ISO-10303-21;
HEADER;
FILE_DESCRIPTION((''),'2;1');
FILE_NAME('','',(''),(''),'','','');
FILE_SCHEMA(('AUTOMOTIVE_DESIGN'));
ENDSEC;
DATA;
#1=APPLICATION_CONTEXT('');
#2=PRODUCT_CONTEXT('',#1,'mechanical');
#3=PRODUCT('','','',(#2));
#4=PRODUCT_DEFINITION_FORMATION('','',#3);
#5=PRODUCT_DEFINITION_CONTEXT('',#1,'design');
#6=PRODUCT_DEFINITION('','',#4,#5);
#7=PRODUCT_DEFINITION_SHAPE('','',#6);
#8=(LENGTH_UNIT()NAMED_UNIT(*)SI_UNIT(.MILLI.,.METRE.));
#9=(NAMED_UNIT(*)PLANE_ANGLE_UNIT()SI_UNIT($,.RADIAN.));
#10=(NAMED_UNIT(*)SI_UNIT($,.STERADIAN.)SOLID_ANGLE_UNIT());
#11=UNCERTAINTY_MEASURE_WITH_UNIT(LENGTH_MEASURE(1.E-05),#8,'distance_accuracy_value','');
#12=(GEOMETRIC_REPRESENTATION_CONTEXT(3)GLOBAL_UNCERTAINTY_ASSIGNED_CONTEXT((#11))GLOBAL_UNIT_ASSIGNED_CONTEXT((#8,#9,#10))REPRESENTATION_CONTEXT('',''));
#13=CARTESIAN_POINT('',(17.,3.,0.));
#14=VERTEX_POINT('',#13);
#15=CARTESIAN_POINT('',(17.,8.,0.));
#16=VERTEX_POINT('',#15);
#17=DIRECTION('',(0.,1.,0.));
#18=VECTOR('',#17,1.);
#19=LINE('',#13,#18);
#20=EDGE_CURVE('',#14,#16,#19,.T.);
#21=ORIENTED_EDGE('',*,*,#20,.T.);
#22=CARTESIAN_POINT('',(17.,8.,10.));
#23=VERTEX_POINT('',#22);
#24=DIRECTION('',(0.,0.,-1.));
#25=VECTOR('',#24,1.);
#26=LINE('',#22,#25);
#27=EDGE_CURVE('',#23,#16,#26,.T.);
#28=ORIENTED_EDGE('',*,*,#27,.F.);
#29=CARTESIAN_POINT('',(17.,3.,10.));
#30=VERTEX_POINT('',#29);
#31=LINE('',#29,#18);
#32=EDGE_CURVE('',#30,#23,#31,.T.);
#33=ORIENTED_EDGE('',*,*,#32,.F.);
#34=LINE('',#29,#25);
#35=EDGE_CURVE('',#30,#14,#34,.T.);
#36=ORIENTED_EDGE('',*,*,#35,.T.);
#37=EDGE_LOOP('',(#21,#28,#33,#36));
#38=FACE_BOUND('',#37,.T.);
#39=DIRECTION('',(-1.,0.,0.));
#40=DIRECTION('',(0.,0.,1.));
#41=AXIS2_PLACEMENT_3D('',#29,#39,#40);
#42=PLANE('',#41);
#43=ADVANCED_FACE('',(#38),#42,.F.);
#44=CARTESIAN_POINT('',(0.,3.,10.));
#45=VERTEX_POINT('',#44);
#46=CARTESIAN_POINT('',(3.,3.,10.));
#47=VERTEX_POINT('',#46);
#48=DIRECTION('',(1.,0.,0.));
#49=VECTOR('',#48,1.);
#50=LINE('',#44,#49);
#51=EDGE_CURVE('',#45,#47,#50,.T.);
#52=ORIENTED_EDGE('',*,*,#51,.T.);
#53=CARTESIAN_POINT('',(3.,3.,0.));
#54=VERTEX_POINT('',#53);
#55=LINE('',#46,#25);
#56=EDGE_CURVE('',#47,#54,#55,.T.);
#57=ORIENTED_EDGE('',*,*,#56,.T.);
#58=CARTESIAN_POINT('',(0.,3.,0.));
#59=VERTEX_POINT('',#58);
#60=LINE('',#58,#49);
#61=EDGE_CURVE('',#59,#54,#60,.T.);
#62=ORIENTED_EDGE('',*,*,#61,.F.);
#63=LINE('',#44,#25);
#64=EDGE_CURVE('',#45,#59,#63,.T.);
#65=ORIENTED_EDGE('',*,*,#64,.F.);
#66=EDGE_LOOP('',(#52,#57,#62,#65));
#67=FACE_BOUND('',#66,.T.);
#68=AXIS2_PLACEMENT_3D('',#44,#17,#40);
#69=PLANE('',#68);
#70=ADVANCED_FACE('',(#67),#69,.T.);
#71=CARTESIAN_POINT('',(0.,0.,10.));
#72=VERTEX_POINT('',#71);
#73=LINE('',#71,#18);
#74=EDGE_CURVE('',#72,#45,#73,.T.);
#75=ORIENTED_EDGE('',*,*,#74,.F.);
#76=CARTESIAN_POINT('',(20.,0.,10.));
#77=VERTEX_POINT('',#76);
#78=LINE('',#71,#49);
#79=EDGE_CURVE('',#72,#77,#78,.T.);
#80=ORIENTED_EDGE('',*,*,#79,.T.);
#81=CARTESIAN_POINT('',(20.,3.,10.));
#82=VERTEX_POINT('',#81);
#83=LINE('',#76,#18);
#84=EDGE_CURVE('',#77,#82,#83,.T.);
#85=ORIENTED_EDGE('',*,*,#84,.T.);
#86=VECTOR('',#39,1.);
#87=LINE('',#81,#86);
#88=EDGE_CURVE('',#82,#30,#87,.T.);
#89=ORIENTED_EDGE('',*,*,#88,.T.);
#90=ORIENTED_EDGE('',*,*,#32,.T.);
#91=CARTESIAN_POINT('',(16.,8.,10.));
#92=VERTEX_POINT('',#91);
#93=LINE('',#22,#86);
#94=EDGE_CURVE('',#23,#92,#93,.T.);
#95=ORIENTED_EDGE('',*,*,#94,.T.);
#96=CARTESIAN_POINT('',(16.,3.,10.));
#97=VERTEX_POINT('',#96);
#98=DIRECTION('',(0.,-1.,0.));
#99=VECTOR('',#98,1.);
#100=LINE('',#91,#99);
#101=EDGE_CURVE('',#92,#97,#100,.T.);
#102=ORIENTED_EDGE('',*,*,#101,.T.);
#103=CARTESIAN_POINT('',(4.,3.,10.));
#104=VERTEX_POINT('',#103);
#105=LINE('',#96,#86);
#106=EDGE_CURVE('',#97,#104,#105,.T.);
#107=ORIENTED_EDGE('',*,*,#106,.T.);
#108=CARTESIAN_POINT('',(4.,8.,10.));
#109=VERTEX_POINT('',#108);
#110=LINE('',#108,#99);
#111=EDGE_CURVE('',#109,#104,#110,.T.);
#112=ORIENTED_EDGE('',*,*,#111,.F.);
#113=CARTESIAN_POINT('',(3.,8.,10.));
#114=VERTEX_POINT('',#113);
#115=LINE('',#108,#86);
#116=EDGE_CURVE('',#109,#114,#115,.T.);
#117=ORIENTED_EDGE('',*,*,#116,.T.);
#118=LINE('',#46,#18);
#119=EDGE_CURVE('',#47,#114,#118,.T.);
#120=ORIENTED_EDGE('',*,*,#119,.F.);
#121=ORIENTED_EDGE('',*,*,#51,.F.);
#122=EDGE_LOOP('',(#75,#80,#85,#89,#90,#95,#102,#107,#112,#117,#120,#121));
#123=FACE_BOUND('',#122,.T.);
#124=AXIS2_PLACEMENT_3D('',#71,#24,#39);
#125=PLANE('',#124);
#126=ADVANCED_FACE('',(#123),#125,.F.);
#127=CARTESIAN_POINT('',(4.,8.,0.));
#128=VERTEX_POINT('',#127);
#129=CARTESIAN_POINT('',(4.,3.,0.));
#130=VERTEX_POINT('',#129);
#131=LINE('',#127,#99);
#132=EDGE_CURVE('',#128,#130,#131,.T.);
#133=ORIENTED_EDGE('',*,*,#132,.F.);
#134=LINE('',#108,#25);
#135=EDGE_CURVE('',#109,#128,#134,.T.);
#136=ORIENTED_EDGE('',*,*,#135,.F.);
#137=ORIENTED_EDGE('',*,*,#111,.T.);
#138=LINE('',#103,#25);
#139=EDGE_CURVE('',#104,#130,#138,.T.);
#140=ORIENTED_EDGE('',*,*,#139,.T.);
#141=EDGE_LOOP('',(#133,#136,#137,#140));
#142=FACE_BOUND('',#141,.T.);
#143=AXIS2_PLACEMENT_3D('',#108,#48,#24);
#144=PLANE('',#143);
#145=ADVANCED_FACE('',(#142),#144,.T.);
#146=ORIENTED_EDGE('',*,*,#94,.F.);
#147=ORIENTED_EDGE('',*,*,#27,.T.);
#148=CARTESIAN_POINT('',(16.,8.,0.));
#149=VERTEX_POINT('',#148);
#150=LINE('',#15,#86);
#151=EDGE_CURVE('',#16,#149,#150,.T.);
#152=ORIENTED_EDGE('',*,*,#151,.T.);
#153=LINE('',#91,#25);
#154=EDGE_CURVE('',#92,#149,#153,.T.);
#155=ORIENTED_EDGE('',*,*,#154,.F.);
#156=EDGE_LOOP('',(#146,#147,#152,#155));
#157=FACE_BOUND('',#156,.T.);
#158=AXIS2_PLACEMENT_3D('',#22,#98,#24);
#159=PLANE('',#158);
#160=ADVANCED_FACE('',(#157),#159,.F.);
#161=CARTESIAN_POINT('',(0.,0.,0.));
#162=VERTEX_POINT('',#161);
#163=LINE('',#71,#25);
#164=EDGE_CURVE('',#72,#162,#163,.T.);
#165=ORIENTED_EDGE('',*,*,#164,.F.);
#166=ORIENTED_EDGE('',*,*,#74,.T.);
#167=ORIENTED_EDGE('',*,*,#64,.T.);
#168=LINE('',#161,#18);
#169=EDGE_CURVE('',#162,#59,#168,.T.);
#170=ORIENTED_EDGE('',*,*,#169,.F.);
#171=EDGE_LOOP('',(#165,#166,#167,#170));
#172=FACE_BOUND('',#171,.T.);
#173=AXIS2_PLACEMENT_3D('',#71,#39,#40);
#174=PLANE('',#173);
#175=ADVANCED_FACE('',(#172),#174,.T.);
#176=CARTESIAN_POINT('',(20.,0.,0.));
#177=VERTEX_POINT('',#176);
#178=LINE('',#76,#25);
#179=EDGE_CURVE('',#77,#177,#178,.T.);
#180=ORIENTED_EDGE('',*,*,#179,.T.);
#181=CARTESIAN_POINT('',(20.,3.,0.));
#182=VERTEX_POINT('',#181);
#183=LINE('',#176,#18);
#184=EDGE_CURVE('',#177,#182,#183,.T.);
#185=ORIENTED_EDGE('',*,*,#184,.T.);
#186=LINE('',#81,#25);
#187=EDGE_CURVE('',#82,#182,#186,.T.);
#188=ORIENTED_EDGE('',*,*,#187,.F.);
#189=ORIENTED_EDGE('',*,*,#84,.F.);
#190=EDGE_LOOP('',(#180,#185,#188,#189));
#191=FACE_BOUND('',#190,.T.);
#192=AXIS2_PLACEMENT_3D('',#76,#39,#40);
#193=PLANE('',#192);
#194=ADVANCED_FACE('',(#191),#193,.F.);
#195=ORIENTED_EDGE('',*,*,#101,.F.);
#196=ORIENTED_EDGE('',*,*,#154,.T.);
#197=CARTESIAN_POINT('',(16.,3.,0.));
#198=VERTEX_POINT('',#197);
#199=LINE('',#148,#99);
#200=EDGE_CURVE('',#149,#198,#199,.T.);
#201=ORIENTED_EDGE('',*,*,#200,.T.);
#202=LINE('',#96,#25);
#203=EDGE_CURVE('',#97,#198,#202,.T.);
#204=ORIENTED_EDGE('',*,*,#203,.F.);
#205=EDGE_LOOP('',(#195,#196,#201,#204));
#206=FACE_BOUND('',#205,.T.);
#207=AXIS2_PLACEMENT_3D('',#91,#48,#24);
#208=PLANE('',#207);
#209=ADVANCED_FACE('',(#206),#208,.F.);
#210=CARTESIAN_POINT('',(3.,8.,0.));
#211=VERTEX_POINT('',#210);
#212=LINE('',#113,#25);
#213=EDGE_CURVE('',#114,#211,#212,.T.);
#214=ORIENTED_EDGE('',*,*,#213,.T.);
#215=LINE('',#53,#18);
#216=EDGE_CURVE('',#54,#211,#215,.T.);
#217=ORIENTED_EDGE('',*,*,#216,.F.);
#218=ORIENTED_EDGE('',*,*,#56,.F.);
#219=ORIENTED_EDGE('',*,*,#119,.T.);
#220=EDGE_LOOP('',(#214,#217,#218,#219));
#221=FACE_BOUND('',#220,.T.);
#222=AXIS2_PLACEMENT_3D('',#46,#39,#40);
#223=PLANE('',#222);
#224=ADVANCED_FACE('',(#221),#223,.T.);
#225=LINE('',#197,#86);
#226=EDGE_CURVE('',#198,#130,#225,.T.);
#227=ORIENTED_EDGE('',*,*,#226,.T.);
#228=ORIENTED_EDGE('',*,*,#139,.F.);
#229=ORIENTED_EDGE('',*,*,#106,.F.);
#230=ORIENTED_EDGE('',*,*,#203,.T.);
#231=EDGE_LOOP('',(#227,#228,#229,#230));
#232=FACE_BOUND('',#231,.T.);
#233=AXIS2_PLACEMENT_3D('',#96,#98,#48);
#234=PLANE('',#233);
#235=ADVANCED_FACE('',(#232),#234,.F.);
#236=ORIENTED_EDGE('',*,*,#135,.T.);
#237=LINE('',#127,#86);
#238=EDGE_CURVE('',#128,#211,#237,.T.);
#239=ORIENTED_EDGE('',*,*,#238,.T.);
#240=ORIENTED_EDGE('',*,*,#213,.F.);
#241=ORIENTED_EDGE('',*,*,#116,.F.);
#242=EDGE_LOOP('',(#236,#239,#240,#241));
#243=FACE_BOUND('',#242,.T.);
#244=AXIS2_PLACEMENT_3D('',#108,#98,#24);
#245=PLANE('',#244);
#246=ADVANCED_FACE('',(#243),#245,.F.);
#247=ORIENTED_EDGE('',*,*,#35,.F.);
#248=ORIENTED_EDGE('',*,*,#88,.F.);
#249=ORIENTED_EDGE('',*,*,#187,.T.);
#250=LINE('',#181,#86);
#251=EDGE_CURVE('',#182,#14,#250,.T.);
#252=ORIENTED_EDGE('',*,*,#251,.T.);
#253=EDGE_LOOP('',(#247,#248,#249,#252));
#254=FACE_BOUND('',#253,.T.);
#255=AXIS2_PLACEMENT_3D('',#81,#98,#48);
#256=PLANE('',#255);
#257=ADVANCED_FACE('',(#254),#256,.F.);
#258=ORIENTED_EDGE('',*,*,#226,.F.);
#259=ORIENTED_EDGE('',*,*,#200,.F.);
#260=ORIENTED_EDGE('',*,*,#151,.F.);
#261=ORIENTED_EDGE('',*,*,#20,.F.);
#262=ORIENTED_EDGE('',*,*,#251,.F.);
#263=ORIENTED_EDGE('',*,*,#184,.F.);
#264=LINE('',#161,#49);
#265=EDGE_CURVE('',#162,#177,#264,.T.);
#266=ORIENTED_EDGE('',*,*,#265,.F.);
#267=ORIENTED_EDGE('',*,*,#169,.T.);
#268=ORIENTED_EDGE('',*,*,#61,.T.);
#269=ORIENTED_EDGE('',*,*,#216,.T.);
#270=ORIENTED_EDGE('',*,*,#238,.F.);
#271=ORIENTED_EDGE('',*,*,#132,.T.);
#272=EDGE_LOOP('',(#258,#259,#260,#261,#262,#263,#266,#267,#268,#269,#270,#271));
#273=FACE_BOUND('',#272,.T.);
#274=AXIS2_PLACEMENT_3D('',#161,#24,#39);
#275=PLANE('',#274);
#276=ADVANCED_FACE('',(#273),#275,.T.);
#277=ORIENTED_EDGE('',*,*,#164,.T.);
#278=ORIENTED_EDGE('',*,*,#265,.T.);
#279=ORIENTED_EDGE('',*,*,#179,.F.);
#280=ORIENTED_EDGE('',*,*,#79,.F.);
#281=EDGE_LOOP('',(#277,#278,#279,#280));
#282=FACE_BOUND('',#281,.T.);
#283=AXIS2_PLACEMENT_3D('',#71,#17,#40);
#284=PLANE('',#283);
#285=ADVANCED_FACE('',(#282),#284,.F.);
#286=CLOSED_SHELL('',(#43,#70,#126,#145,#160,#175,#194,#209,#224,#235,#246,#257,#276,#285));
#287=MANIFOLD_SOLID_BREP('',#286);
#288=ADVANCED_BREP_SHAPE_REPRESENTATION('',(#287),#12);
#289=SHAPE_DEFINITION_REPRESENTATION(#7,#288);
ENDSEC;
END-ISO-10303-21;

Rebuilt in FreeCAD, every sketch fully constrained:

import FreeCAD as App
import Part
import Sketcher
from FreeCAD import Vector
Q = App.Units.Quantity


def add_polygon(sketch, points):
    """Adds a closed chain of lines whose ends are joined by coincident constraints."""
    first, n = sketch.GeometryCount, len(points)
    for a, b in zip(points, points[1:] + points[:1]):
        sketch.addGeometry(Part.LineSegment(App.Vector(*a, 0), App.Vector(*b, 0)), False)
    for i in range(n):
        sketch.addConstraint(Sketcher.Constraint("Coincident", first + i, 2, first + (i + 1) % n, 1))

doc = App.newDocument("Part")
body = doc.addObject("PartDesign::Body", "Body")

sketch1 = body.newObject("Sketcher::SketchObject", "Sketch")
sketch1.AttachmentSupport = (doc.getObject("XY_Plane"), [""])
sketch1.MapMode = "FlatFace"
add_polygon(sketch1, [(0, 0), (20, 0), (20, 3), (17, 3), (17, 8), (16, 8), (16, 3), (4, 3), (4, 8), (3, 8), (3, 3), (0, 3)])
sketch1.addConstraint([
    Sketcher.Constraint("Horizontal", 0),
    Sketcher.Constraint("Vertical", 1),
    Sketcher.Constraint("Horizontal", 2),
    Sketcher.Constraint("Vertical", 3),
    Sketcher.Constraint("Horizontal", 4),
    Sketcher.Constraint("Vertical", 5),
    Sketcher.Constraint("Horizontal", 6),
    Sketcher.Constraint("Vertical", 7),
    Sketcher.Constraint("Horizontal", 8),
    Sketcher.Constraint("Vertical", 9),
    Sketcher.Constraint("Horizontal", 10),
    Sketcher.Constraint("Vertical", 11),
    Sketcher.Constraint("Coincident", 11, 2, -1, 1),
    Sketcher.Constraint("Horizontal", 2, 2, 5, 2),
    Sketcher.Constraint("Horizontal", 4, 2, 7, 2),
    Sketcher.Constraint("Horizontal", 6, 2, 9, 2),
    Sketcher.Constraint("Equal", 4, 8),
    Sketcher.Constraint("Equal", 2, 10),
    Sketcher.Constraint("Equal", 10, 1),
    Sketcher.Constraint("DistanceX", 0, 1, 0, 2, Q("20 mm")),
    Sketcher.Constraint("DistanceX", 2, 2, 2, 1, Q("3 mm")),
    Sketcher.Constraint("DistanceX", 4, 2, 4, 1, Q("1 mm")),
    Sketcher.Constraint("DistanceY", 3, 1, 3, 2, Q("5 mm")),
])
pad1 = body.newObject("PartDesign::Pad", "Pad")
pad1.Profile = sketch1
pad1.Length = 10

doc.recompute()
